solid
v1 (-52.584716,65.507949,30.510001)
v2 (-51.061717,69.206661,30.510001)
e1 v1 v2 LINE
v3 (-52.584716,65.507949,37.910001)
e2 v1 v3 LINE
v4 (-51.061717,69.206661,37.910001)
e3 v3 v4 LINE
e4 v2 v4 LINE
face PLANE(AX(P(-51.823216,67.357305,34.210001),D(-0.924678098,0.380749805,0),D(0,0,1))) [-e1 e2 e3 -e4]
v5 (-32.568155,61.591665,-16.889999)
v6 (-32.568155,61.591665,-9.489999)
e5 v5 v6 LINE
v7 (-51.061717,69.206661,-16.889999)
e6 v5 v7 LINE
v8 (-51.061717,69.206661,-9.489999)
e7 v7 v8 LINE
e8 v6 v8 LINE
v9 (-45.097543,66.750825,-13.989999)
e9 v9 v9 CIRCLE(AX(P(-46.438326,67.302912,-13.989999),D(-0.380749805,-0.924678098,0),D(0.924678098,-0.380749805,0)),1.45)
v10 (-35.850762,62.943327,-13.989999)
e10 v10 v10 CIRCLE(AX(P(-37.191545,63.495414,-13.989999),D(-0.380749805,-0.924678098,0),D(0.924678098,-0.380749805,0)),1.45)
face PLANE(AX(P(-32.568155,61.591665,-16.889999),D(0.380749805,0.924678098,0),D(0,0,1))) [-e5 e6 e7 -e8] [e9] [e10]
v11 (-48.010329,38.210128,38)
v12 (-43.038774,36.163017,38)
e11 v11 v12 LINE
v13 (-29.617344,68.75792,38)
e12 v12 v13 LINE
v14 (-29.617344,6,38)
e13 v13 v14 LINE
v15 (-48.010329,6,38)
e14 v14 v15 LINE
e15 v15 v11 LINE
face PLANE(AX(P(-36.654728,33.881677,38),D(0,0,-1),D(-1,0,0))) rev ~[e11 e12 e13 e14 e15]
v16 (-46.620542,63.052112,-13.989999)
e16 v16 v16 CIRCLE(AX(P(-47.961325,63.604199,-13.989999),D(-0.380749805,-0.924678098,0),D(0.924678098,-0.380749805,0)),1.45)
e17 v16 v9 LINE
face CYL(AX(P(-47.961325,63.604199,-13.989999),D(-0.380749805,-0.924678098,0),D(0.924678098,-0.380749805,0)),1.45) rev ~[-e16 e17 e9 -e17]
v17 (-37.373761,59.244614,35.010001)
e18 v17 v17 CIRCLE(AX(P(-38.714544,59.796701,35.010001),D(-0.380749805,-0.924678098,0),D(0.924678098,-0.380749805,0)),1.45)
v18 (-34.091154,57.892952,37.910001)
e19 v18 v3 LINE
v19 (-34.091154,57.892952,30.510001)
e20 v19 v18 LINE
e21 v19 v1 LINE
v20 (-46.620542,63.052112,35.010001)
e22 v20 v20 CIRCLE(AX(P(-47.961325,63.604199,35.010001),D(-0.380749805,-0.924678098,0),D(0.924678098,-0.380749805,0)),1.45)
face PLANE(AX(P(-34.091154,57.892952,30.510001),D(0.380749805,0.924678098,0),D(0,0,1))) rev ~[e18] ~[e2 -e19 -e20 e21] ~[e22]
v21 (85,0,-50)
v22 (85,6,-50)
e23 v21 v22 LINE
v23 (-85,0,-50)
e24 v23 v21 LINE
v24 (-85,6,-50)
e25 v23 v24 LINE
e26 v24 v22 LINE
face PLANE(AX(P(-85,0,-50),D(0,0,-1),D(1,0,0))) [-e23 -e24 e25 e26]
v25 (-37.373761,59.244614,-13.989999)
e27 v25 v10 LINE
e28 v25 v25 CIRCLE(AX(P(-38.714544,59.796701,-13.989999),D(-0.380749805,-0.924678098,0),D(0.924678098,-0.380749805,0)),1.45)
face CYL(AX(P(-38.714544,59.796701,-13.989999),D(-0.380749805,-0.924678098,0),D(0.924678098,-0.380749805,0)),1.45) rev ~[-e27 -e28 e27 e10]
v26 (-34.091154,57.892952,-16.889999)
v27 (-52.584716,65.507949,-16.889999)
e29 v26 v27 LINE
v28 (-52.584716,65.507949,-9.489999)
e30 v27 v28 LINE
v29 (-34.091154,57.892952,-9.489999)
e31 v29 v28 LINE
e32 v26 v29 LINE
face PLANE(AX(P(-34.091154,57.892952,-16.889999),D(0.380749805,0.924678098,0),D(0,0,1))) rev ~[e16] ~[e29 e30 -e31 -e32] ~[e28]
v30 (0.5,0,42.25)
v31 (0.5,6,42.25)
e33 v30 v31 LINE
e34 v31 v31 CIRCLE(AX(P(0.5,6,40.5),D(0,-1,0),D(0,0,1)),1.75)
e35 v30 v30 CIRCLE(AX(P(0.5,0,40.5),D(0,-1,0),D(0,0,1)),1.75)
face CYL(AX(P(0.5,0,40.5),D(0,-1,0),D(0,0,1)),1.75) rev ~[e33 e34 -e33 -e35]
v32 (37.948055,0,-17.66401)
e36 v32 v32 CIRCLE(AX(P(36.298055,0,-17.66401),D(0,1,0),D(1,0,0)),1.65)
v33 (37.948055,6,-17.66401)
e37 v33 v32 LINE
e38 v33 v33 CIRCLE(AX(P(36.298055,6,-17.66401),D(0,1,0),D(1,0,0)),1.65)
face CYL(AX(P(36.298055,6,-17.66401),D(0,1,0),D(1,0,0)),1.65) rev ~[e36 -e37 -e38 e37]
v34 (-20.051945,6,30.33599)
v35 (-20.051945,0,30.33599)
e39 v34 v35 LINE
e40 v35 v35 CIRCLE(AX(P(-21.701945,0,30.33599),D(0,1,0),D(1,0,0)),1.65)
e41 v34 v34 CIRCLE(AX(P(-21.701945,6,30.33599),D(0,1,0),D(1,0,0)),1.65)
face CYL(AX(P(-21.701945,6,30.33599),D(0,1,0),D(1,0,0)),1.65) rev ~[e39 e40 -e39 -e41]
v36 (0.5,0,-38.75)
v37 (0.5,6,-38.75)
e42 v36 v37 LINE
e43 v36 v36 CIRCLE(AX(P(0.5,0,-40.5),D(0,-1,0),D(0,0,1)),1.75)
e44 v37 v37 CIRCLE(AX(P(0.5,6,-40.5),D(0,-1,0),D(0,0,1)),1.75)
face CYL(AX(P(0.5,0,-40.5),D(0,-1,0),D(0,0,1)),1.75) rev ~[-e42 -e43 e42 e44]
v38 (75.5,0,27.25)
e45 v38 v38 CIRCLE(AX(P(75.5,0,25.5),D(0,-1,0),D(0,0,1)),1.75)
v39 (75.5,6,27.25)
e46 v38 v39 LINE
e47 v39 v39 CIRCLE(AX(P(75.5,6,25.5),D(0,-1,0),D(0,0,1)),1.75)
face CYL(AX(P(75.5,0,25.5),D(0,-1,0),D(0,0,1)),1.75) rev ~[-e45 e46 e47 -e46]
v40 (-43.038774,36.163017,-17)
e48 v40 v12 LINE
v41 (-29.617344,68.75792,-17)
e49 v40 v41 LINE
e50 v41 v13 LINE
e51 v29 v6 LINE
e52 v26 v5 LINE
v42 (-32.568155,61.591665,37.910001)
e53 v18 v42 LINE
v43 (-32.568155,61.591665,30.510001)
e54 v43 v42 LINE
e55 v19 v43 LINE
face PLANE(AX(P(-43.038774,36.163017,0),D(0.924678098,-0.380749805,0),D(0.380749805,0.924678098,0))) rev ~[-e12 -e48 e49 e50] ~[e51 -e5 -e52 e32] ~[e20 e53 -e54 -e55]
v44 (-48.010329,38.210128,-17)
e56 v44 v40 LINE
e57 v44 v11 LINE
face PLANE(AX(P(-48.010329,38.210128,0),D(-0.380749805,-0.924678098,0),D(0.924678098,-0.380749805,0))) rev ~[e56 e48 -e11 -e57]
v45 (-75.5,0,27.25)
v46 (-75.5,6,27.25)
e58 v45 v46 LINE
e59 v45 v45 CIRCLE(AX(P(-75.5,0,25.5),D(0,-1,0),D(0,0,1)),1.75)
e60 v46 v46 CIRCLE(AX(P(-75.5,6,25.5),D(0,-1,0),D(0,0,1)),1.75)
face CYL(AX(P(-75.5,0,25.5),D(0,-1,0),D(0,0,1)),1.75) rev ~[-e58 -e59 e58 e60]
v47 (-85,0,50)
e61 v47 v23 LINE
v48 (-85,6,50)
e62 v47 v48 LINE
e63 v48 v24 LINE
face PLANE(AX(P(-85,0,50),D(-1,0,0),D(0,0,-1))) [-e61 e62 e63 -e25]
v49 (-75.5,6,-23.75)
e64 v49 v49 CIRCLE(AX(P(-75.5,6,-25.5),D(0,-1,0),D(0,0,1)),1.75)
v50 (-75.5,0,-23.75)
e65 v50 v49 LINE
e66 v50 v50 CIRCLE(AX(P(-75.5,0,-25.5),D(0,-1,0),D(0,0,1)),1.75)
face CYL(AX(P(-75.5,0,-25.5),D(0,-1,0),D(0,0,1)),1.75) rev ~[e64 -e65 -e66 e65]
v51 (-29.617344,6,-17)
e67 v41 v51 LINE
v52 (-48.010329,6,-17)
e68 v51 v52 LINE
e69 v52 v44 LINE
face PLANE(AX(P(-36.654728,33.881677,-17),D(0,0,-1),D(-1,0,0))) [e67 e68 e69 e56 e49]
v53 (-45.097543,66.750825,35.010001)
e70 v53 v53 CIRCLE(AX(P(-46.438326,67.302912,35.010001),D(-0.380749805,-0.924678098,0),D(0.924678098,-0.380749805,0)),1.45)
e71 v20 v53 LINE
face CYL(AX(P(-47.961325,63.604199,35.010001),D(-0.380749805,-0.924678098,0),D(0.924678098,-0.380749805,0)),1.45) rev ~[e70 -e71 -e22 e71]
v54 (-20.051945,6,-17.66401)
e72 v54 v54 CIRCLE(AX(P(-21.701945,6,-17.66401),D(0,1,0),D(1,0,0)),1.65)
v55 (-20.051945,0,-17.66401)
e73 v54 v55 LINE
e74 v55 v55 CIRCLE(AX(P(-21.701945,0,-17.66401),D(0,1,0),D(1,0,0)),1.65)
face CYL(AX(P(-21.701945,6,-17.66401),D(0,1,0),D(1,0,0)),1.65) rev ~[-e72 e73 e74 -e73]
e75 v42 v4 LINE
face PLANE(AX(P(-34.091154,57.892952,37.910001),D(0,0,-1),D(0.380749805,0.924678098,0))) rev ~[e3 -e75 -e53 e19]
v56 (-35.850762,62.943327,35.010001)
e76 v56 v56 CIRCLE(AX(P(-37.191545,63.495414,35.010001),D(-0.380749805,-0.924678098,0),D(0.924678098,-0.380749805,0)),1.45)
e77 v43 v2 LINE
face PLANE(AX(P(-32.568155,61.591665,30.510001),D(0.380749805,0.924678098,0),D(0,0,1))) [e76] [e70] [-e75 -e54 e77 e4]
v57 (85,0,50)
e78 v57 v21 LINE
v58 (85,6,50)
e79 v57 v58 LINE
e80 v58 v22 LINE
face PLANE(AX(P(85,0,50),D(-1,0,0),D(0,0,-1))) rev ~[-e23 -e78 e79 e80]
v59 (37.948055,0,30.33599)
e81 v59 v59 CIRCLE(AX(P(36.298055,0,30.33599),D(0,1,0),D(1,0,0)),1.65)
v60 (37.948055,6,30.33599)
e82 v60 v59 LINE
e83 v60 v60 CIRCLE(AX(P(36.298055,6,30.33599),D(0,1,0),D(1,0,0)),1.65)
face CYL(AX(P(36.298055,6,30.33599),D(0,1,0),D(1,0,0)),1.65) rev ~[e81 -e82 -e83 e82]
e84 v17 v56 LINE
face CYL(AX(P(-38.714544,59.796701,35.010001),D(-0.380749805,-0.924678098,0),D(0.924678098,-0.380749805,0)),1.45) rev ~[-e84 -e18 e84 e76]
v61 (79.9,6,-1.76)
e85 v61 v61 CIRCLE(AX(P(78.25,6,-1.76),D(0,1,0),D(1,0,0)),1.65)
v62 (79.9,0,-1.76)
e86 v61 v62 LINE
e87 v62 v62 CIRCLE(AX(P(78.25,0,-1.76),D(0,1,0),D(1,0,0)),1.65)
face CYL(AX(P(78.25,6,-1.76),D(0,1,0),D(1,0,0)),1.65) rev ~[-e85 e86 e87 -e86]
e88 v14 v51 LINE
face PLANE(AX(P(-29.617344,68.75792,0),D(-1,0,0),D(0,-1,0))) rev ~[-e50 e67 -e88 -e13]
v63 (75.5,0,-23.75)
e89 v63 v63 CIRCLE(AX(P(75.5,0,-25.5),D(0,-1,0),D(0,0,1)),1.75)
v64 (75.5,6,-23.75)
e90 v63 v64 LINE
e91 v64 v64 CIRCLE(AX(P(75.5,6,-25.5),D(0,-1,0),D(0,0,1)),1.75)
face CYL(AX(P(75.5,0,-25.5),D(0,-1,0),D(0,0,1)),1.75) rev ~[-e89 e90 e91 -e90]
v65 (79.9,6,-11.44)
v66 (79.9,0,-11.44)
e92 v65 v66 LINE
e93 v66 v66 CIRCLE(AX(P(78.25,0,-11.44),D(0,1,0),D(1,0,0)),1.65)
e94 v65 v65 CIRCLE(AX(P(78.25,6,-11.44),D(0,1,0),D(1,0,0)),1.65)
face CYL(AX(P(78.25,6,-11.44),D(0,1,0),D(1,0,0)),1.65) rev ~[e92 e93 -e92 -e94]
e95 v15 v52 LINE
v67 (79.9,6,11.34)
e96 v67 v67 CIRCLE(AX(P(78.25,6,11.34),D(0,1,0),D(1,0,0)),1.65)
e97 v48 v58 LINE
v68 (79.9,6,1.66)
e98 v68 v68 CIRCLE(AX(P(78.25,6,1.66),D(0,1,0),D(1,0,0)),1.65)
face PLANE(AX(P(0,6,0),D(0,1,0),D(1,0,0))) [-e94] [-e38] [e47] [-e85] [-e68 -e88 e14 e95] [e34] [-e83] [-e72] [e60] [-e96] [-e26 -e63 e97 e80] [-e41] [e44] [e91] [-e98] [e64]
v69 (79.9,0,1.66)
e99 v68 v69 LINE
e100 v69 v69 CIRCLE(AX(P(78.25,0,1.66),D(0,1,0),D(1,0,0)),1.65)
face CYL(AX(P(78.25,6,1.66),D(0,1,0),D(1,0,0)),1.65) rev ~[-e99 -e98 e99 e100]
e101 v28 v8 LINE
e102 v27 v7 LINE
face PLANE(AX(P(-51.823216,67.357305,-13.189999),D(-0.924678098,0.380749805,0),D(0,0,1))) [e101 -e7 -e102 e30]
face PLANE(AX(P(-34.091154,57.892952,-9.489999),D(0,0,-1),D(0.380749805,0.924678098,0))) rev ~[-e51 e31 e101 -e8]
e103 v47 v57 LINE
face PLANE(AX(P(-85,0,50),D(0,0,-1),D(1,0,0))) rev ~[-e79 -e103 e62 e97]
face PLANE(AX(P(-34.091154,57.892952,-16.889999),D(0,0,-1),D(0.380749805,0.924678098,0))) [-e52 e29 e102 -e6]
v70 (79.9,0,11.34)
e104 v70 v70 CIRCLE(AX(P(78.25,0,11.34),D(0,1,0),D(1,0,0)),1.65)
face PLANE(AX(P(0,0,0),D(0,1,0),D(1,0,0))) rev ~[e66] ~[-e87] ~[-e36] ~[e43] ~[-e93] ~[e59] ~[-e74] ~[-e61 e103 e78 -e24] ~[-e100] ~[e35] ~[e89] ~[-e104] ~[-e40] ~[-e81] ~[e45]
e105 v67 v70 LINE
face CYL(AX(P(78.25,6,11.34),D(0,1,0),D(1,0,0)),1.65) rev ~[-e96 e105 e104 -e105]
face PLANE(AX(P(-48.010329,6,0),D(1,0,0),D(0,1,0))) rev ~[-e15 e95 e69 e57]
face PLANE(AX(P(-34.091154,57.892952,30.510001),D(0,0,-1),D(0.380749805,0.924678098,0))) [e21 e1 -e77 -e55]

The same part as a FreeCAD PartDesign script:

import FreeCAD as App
import Part
import Sketcher
Q = App.Units.Quantity


def add_polygon(sketch, points):
    """Adds a closed chain of lines whose ends are joined by coincident constraints."""
    first, n = sketch.GeometryCount, len(points)
    for a, b in zip(points, points[1:] + points[:1]):
        sketch.addGeometry(Part.LineSegment(App.Vector(*a, 0), App.Vector(*b, 0)), False)
    for i in range(n):
        sketch.addConstraint(Sketcher.Constraint("Coincident", first + i, 2, first + (i + 1) % n, 1))

doc = App.newDocument("Part")
params = doc.addObject("Spreadsheet::Sheet", "Params")
for row, (alias, value) in enumerate([
    ("sketch1_width", "170 mm"),
    ("sketch1_height", "100 mm"),
    ("pad1_length", "6 mm"),
    ("sketch2_length", "35.25 mm"),
    ("pad2_length", "38 mm"),
    ("pad2_length2", "17 mm"),
    ("sketch3_height", "4 mm"),
    ("sketch3_width", "7.4 mm"),
    ("pad3_length", "20 mm"),
    ("sketch4_diameter", "2.9 mm"),
    ("pocket1_length", "10 mm"),
    ("sketch5_diameter", "3.5 mm"),
    ("pocket2_length", "20 mm"),
    ("sketch6_diameter", "3.3 mm"),
    ("pocket3_length", "10 mm"),
    ("sketch7_diameter", "3.3 mm"),
    ("pocket4_length", "6 mm"),
], start=1):
    params.set(f"A{row}", alias)
    params.set(f"B{row}", "=" + value)
    params.setAlias(f"B{row}", alias)

body = doc.addObject("PartDesign::Body", "Body")

# Sketch on XZ plane
sketch1 = doc.addObject("Sketcher::SketchObject", "Sketch")
body.addObject(sketch1)
sketch1.AttachmentSupport = (doc.XZ_Plane, [""])
sketch1.MapMode = "FlatFace"
add_polygon(sketch1, [(-85, -50), (-85, 50), (85, 50), (85, -50)])  # lines 0-3
sketch1.addConstraint(Sketcher.Constraint("Vertical", 0))
sketch1.addConstraint(Sketcher.Constraint("Horizontal", 1))
sketch1.addConstraint(Sketcher.Constraint("Vertical", 2))
sketch1.addConstraint(Sketcher.Constraint("Horizontal", 3))
sketch1.addConstraint(Sketcher.Constraint("Symmetric", 0, 2, 2, 2, -1, 1))
sketch1.addConstraint(Sketcher.Constraint("DistanceX", 1, 1, 1, 2, Q("170 mm")))
sketch1.addConstraint(Sketcher.Constraint("DistanceY", 0, 1, 0, 2, Q("100 mm")))
sketch1.setExpression("Constraints[9]", "Params.sketch1_width")
sketch1.setExpression("Constraints[10]", "Params.sketch1_height")
pad1 = doc.addObject("PartDesign::Pad", "Pad")
body.addObject(pad1)
pad1.Profile = sketch1
pad1.setExpression("Length", "Params.pad1_length")
pad1.Reversed = True

# Sketch on XY plane
sketch2 = doc.addObject("Sketcher::SketchObject", "Sketch001")
body.addObject(sketch2)
sketch2.AttachmentSupport = (doc.XY_Plane, [""])
sketch2.MapMode = "FlatFace"
add_polygon(sketch2, [(-30, 6), (-30, 69), (-43, 36), (-48, 38), (-48, 6)])  # lines 0-4
sketch2.addConstraint(Sketcher.Constraint("Vertical", 0))
sketch2.addConstraint(Sketcher.Constraint("Vertical", 3))
sketch2.addConstraint(Sketcher.Constraint("Horizontal", 4))
sketch2.addConstraint(Sketcher.Constraint("Perpendicular", 1, 2))
sketch2.addConstraint(Sketcher.Constraint("DistanceY", -1, 1, 3, 2, Q("6 mm")))
sketch2.addConstraint(Sketcher.Constraint("Distance", 1, Q("35.25 mm")))
sketch2.addConstraint(Sketcher.Constraint("DistanceY", 0, 1, 0, 2, Q("62.75792 mm")))
sketch2.addConstraint(Sketcher.Constraint("DistanceX", 4, 1, 4, 2, Q("18.392985 mm")))
sketch2.addConstraint(Sketcher.Constraint("DistanceY", 3, 2, 3, 1, Q("32.210128 mm")))
sketch2.addConstraint(Sketcher.Constraint("DistanceX", 2, 2, -1, 1, Q("48.010329 mm")))
sketch2.setExpression("Constraints[10]", "Params.sketch2_length")
pad2 = doc.addObject("PartDesign::Pad", "Pad001")
body.addObject(pad2)
pad2.Profile = sketch2
pad2.Type = "TwoLengths"
pad2.setExpression("Length", "Params.pad2_length")
pad2.setExpression("Length2", "Params.pad2_length2")

# Sketch on an angled plane
sketch3 = doc.addObject("Sketcher::SketchObject", "Sketch002")
body.addObject(sketch3)
sketch3.Placement = App.Placement(App.Vector(-49.531375, 20.395272, 0), App.Rotation(App.Vector(0, 0, 1), App.Vector(0.380749805, 0.924678098, 0), App.Vector(-0.924678098, 0.380749805, 0), "ZXY"))
add_polygon(sketch3, [(30.5, 44.6), (30.5, 40.6), (37.9, 40.6), (37.9, 44.6)])  # lines 0-3
add_polygon(sketch3, [(-16.9, 44.6), (-16.9, 40.6), (-9.5, 40.6), (-9.5, 44.6)])  # lines 4-7
sketch3.addConstraint(Sketcher.Constraint("Vertical", 0))
sketch3.addConstraint(Sketcher.Constraint("Horizontal", 1))
sketch3.addConstraint(Sketcher.Constraint("Vertical", 2))
sketch3.addConstraint(Sketcher.Constraint("Horizontal", 3))
sketch3.addConstraint(Sketcher.Constraint("Vertical", 4))
sketch3.addConstraint(Sketcher.Constraint("Horizontal", 5))
sketch3.addConstraint(Sketcher.Constraint("Vertical", 6))
sketch3.addConstraint(Sketcher.Constraint("Horizontal", 7))
sketch3.addConstraint(Sketcher.Constraint("Horizontal", 1, 2, 4, 2))
sketch3.addConstraint(Sketcher.Constraint("Horizontal", 3, 2, 6, 2))
sketch3.addConstraint(Sketcher.Constraint("Equal", 3, 5))
sketch3.addConstraint(Sketcher.Constraint("DistanceY", 0, 2, 0, 1, Q("4 mm")))
sketch3.addConstraint(Sketcher.Constraint("DistanceX", 1, 1, 1, 2, Q("7.4 mm")))
sketch3.addConstraint(Sketcher.Constraint("DistanceX", 5, 2, 0, 2, Q("40 mm")))
sketch3.addConstraint(Sketcher.Constraint("DistanceX", -1, 1, 0, 2, Q("30.510001 mm")))
sketch3.addConstraint(Sketcher.Constraint("DistanceY", -1, 1, 0, 2, Q("40.552145 mm")))
sketch3.setExpression("Constraints[19]", "Params.sketch3_height")
sketch3.setExpression("Constraints[20]", "Params.sketch3_width")
pad3 = doc.addObject("PartDesign::Pad", "Pad002")
body.addObject(pad3)
pad3.Profile = sketch3
pad3.setExpression("Length", "Params.pad3_length")

# Sketch on an angled plane
sketch4 = doc.addObject("Sketcher::SketchObject", "Sketch003")
body.addObject(sketch4)
sketch4.Placement = App.Placement(App.Vector(15.440221, 37.49768, 0), App.Rotation(App.Vector(0.924678098, -0.380749805, 0), App.Vector(0, 0, 0.999999999), App.Vector(-0.380749805, -0.924678098, 0), "ZXY"))
sketch4.addGeometry(Part.Circle(App.Vector(-68.6, -14, 0), App.Vector(0, 0, 1), 1.4), False)
sketch4.addGeometry(Part.Circle(App.Vector(-68.6, 35, 0), App.Vector(0, 0, 1), 1.4), False)
sketch4.addGeometry(Part.Circle(App.Vector(-58.6, 35, 0), App.Vector(0, 0, 1), 1.4), False)
sketch4.addGeometry(Part.Circle(App.Vector(-58.6, -14, 0), App.Vector(0, 0, 1), 1.4), False)
sketch4.addConstraint(Sketcher.Constraint("Equal", 0, 1))
sketch4.addConstraint(Sketcher.Constraint("Equal", 1, 2))
sketch4.addConstraint(Sketcher.Constraint("Equal", 2, 3))
sketch4.addConstraint(Sketcher.Constraint("Horizontal", 1, 3, 2, 3))
sketch4.addConstraint(Sketcher.Constraint("Horizontal", 0, 3, 3, 3))
sketch4.addConstraint(Sketcher.Constraint("Vertical", 0, 3, 1, 3))
sketch4.addConstraint(Sketcher.Constraint("Vertical", 2, 3, 3, 3))
sketch4.addConstraint(Sketcher.Constraint("Diameter", 0, Q("2.9 mm")))
sketch4.addConstraint(Sketcher.Constraint("DistanceY", 0, 3, 1, 3, Q("49 mm")))
sketch4.addConstraint(Sketcher.Constraint("DistanceX", 1, 3, 2, 3, Q("10 mm")))
sketch4.addConstraint(Sketcher.Constraint("DistanceY", 0, 3, -1, 1, Q("13.989999 mm")))
sketch4.addConstraint(Sketcher.Constraint("DistanceX", 0, 3, -1, 1, Q("68.566074 mm")))
sketch4.setExpression("Constraints[7]", "Params.sketch4_diameter")
pocket1 = doc.addObject("PartDesign::Pocket", "Pocket")
body.addObject(pocket1)
pocket1.Profile = sketch4
pocket1.setExpression("Length", "Params.pocket1_length")

# Sketch on XZ plane
sketch5 = doc.addObject("Sketcher::SketchObject", "Sketch004")
body.addObject(sketch5)
sketch5.AttachmentSupport = (doc.XZ_Plane, [""])
sketch5.MapMode = "FlatFace"
sketch5.addGeometry(Part.Circle(App.Vector(-75.5, -25.5, 0), App.Vector(0, 0, 1), 1.8), False)
sketch5.addGeometry(Part.Circle(App.Vector(-75.5, 25.5, 0), App.Vector(0, 0, 1), 1.8), False)
sketch5.addGeometry(Part.Circle(App.Vector(0.5, 40.5, 0), App.Vector(0, 0, 1), 1.8), False)
sketch5.addGeometry(Part.Circle(App.Vector(0.5, -40.5, 0), App.Vector(0, 0, 1), 1.8), False)
sketch5.addGeometry(Part.Circle(App.Vector(75.5, -25.5, 0), App.Vector(0, 0, 1), 1.8), False)
sketch5.addGeometry(Part.Circle(App.Vector(75.5, 25.5, 0), App.Vector(0, 0, 1), 1.8), False)
sketch5.addConstraint(Sketcher.Constraint("Equal", 0, 1))
sketch5.addConstraint(Sketcher.Constraint("Equal", 1, 2))
sketch5.addConstraint(Sketcher.Constraint("Equal", 2, 3))
sketch5.addConstraint(Sketcher.Constraint("Equal", 3, 4))
sketch5.addConstraint(Sketcher.Constraint("Equal", 4, 5))
sketch5.addConstraint(Sketcher.Constraint("Symmetric", 1, 3, 4, 3, -1, 1))
sketch5.addConstraint(Sketcher.Constraint("Symmetric", 0, 3, 5, 3, -1, 1))
sketch5.addConstraint(Sketcher.Constraint("Symmetric", 0, 3, 4, 3, -2))
sketch5.addConstraint(Sketcher.Constraint("Symmetric", 2, 3, 3, 3, -1))
sketch5.addConstraint(Sketcher.Constraint("Diameter", 0, Q("3.5 mm")))
sketch5.addConstraint(Sketcher.Constraint("DistanceY", 0, 3, 1, 3, Q("51 mm")))
sketch5.addConstraint(Sketcher.Constraint("DistanceX", 1, 3, 2, 3, Q("76 mm")))
sketch5.addConstraint(Sketcher.Constraint("DistanceY", 1, 3, 2, 3, Q("15 mm")))
sketch5.addConstraint(Sketcher.Constraint("DistanceX", 3, 3, 4, 3, Q("75 mm")))
sketch5.setExpression("Constraints[9]", "Params.sketch5_diameter")
pocket2 = doc.addObject("PartDesign::Pocket", "Pocket001")
body.addObject(pocket2)
pocket2.Profile = sketch5
pocket2.setExpression("Length", "Params.pocket2_length")

# Sketch on XZ plane
sketch6 = doc.addObject("Sketcher::SketchObject", "Sketch005")
body.addObject(sketch6)
sketch6.AttachmentSupport = (doc.XZ_Plane, [""])
sketch6.MapMode = "FlatFace"
sketch6.AttachmentOffset = App.Placement(App.Vector(0, 0, -6), App.Rotation())
sketch6.addGeometry(Part.Circle(App.Vector(36.3, 30.3, 0), App.Vector(0, 0, 1), 1.6), False)
sketch6.addGeometry(Part.Circle(App.Vector(36.3, -17.7, 0), App.Vector(0, 0, 1), 1.6), False)
sketch6.addGeometry(Part.Circle(App.Vector(-21.7, -17.7, 0), App.Vector(0, 0, 1), 1.6), False)
sketch6.addGeometry(Part.Circle(App.Vector(-21.7, 30.3, 0), App.Vector(0, 0, 1), 1.6), False)
sketch6.addConstraint(Sketcher.Constraint("Equal", 0, 1))
sketch6.addConstraint(Sketcher.Constraint("Equal", 1, 2))
sketch6.addConstraint(Sketcher.Constraint("Equal", 2, 3))
sketch6.addConstraint(Sketcher.Constraint("Horizontal", 1, 3, 2, 3))
sketch6.addConstraint(Sketcher.Constraint("Horizontal", 0, 3, 3, 3))
sketch6.addConstraint(Sketcher.Constraint("Vertical", 0, 3, 1, 3))
sketch6.addConstraint(Sketcher.Constraint("Vertical", 2, 3, 3, 3))
sketch6.addConstraint(Sketcher.Constraint("Diameter", 0, Q("3.3 mm")))
sketch6.addConstraint(Sketcher.Constraint("DistanceY", 1, 3, 0, 3, Q("48 mm")))
sketch6.addConstraint(Sketcher.Constraint("DistanceX", 2, 3, 1, 3, Q("58 mm")))
sketch6.addConstraint(Sketcher.Constraint("DistanceY", -1, 1, 0, 3, Q("30.33599 mm")))
sketch6.addConstraint(Sketcher.Constraint("DistanceX", -1, 1, 0, 3, Q("36.298055 mm")))
sketch6.setExpression("Constraints[7]", "Params.sketch6_diameter")
pocket3 = doc.addObject("PartDesign::Pocket", "Pocket002")
body.addObject(pocket3)
pocket3.Profile = sketch6
pocket3.setExpression("Length", "Params.pocket3_length")
pocket3.Reversed = True

# Sketch on XZ plane
sketch7 = doc.addObject("Sketcher::SketchObject", "Sketch006")
body.addObject(sketch7)
sketch7.AttachmentSupport = (doc.XZ_Plane, [""])
sketch7.MapMode = "FlatFace"
sketch7.AttachmentOffset = App.Placement(App.Vector(0, 0, -6), App.Rotation())
sketch7.addGeometry(Part.Circle(App.Vector(78.2, 11.3, 0), App.Vector(0, 0, 1), 1.6), False)
sketch7.addGeometry(Part.Circle(App.Vector(78.2, -1.8, 0), App.Vector(0, 0, 1), 1.6), False)
sketch7.addGeometry(Part.Circle(App.Vector(78.2, -11.4, 0), App.Vector(0, 0, 1), 1.6), False)
sketch7.addGeometry(Part.Circle(App.Vector(78.2, 1.7, 0), App.Vector(0, 0, 1), 1.6), False)
sketch7.addConstraint(Sketcher.Constraint("Equal", 0, 1))
sketch7.addConstraint(Sketcher.Constraint("Equal", 1, 2))
sketch7.addConstraint(Sketcher.Constraint("Equal", 2, 3))
sketch7.addConstraint(Sketcher.Constraint("Vertical", 0, 3, 1, 3))
sketch7.addConstraint(Sketcher.Constraint("Vertical", 1, 3, 2, 3))
sketch7.addConstraint(Sketcher.Constraint("Vertical", 2, 3, 3, 3))
sketch7.addConstraint(Sketcher.Constraint("Diameter", 0, Q("3.3 mm")))
sketch7.addConstraint(Sketcher.Constraint("DistanceY", 1, 3, 0, 3, Q("13.1 mm")))
sketch7.addConstraint(Sketcher.Constraint("DistanceY", 2, 3, 3, 3, Q("13.1 mm")))
sketch7.addConstraint(Sketcher.Constraint("DistanceX", -1, 1, 0, 3, Q("78.25 mm")))
sketch7.addConstraint(Sketcher.Constraint("DistanceY", -1, 1, 0, 3, Q("11.34 mm")))
sketch7.addConstraint(Sketcher.Constraint("DistanceY", 2, 3, -1, 1, Q("11.44 mm")))
sketch7.setExpression("Constraints[6]", "Params.sketch7_diameter")
pocket4 = doc.addObject("PartDesign::Pocket", "Pocket003")
body.addObject(pocket4)
pocket4.Profile = sketch7
pocket4.setExpression("Length", "Params.pocket4_length")
pocket4.Reversed = True

doc.recompute()
